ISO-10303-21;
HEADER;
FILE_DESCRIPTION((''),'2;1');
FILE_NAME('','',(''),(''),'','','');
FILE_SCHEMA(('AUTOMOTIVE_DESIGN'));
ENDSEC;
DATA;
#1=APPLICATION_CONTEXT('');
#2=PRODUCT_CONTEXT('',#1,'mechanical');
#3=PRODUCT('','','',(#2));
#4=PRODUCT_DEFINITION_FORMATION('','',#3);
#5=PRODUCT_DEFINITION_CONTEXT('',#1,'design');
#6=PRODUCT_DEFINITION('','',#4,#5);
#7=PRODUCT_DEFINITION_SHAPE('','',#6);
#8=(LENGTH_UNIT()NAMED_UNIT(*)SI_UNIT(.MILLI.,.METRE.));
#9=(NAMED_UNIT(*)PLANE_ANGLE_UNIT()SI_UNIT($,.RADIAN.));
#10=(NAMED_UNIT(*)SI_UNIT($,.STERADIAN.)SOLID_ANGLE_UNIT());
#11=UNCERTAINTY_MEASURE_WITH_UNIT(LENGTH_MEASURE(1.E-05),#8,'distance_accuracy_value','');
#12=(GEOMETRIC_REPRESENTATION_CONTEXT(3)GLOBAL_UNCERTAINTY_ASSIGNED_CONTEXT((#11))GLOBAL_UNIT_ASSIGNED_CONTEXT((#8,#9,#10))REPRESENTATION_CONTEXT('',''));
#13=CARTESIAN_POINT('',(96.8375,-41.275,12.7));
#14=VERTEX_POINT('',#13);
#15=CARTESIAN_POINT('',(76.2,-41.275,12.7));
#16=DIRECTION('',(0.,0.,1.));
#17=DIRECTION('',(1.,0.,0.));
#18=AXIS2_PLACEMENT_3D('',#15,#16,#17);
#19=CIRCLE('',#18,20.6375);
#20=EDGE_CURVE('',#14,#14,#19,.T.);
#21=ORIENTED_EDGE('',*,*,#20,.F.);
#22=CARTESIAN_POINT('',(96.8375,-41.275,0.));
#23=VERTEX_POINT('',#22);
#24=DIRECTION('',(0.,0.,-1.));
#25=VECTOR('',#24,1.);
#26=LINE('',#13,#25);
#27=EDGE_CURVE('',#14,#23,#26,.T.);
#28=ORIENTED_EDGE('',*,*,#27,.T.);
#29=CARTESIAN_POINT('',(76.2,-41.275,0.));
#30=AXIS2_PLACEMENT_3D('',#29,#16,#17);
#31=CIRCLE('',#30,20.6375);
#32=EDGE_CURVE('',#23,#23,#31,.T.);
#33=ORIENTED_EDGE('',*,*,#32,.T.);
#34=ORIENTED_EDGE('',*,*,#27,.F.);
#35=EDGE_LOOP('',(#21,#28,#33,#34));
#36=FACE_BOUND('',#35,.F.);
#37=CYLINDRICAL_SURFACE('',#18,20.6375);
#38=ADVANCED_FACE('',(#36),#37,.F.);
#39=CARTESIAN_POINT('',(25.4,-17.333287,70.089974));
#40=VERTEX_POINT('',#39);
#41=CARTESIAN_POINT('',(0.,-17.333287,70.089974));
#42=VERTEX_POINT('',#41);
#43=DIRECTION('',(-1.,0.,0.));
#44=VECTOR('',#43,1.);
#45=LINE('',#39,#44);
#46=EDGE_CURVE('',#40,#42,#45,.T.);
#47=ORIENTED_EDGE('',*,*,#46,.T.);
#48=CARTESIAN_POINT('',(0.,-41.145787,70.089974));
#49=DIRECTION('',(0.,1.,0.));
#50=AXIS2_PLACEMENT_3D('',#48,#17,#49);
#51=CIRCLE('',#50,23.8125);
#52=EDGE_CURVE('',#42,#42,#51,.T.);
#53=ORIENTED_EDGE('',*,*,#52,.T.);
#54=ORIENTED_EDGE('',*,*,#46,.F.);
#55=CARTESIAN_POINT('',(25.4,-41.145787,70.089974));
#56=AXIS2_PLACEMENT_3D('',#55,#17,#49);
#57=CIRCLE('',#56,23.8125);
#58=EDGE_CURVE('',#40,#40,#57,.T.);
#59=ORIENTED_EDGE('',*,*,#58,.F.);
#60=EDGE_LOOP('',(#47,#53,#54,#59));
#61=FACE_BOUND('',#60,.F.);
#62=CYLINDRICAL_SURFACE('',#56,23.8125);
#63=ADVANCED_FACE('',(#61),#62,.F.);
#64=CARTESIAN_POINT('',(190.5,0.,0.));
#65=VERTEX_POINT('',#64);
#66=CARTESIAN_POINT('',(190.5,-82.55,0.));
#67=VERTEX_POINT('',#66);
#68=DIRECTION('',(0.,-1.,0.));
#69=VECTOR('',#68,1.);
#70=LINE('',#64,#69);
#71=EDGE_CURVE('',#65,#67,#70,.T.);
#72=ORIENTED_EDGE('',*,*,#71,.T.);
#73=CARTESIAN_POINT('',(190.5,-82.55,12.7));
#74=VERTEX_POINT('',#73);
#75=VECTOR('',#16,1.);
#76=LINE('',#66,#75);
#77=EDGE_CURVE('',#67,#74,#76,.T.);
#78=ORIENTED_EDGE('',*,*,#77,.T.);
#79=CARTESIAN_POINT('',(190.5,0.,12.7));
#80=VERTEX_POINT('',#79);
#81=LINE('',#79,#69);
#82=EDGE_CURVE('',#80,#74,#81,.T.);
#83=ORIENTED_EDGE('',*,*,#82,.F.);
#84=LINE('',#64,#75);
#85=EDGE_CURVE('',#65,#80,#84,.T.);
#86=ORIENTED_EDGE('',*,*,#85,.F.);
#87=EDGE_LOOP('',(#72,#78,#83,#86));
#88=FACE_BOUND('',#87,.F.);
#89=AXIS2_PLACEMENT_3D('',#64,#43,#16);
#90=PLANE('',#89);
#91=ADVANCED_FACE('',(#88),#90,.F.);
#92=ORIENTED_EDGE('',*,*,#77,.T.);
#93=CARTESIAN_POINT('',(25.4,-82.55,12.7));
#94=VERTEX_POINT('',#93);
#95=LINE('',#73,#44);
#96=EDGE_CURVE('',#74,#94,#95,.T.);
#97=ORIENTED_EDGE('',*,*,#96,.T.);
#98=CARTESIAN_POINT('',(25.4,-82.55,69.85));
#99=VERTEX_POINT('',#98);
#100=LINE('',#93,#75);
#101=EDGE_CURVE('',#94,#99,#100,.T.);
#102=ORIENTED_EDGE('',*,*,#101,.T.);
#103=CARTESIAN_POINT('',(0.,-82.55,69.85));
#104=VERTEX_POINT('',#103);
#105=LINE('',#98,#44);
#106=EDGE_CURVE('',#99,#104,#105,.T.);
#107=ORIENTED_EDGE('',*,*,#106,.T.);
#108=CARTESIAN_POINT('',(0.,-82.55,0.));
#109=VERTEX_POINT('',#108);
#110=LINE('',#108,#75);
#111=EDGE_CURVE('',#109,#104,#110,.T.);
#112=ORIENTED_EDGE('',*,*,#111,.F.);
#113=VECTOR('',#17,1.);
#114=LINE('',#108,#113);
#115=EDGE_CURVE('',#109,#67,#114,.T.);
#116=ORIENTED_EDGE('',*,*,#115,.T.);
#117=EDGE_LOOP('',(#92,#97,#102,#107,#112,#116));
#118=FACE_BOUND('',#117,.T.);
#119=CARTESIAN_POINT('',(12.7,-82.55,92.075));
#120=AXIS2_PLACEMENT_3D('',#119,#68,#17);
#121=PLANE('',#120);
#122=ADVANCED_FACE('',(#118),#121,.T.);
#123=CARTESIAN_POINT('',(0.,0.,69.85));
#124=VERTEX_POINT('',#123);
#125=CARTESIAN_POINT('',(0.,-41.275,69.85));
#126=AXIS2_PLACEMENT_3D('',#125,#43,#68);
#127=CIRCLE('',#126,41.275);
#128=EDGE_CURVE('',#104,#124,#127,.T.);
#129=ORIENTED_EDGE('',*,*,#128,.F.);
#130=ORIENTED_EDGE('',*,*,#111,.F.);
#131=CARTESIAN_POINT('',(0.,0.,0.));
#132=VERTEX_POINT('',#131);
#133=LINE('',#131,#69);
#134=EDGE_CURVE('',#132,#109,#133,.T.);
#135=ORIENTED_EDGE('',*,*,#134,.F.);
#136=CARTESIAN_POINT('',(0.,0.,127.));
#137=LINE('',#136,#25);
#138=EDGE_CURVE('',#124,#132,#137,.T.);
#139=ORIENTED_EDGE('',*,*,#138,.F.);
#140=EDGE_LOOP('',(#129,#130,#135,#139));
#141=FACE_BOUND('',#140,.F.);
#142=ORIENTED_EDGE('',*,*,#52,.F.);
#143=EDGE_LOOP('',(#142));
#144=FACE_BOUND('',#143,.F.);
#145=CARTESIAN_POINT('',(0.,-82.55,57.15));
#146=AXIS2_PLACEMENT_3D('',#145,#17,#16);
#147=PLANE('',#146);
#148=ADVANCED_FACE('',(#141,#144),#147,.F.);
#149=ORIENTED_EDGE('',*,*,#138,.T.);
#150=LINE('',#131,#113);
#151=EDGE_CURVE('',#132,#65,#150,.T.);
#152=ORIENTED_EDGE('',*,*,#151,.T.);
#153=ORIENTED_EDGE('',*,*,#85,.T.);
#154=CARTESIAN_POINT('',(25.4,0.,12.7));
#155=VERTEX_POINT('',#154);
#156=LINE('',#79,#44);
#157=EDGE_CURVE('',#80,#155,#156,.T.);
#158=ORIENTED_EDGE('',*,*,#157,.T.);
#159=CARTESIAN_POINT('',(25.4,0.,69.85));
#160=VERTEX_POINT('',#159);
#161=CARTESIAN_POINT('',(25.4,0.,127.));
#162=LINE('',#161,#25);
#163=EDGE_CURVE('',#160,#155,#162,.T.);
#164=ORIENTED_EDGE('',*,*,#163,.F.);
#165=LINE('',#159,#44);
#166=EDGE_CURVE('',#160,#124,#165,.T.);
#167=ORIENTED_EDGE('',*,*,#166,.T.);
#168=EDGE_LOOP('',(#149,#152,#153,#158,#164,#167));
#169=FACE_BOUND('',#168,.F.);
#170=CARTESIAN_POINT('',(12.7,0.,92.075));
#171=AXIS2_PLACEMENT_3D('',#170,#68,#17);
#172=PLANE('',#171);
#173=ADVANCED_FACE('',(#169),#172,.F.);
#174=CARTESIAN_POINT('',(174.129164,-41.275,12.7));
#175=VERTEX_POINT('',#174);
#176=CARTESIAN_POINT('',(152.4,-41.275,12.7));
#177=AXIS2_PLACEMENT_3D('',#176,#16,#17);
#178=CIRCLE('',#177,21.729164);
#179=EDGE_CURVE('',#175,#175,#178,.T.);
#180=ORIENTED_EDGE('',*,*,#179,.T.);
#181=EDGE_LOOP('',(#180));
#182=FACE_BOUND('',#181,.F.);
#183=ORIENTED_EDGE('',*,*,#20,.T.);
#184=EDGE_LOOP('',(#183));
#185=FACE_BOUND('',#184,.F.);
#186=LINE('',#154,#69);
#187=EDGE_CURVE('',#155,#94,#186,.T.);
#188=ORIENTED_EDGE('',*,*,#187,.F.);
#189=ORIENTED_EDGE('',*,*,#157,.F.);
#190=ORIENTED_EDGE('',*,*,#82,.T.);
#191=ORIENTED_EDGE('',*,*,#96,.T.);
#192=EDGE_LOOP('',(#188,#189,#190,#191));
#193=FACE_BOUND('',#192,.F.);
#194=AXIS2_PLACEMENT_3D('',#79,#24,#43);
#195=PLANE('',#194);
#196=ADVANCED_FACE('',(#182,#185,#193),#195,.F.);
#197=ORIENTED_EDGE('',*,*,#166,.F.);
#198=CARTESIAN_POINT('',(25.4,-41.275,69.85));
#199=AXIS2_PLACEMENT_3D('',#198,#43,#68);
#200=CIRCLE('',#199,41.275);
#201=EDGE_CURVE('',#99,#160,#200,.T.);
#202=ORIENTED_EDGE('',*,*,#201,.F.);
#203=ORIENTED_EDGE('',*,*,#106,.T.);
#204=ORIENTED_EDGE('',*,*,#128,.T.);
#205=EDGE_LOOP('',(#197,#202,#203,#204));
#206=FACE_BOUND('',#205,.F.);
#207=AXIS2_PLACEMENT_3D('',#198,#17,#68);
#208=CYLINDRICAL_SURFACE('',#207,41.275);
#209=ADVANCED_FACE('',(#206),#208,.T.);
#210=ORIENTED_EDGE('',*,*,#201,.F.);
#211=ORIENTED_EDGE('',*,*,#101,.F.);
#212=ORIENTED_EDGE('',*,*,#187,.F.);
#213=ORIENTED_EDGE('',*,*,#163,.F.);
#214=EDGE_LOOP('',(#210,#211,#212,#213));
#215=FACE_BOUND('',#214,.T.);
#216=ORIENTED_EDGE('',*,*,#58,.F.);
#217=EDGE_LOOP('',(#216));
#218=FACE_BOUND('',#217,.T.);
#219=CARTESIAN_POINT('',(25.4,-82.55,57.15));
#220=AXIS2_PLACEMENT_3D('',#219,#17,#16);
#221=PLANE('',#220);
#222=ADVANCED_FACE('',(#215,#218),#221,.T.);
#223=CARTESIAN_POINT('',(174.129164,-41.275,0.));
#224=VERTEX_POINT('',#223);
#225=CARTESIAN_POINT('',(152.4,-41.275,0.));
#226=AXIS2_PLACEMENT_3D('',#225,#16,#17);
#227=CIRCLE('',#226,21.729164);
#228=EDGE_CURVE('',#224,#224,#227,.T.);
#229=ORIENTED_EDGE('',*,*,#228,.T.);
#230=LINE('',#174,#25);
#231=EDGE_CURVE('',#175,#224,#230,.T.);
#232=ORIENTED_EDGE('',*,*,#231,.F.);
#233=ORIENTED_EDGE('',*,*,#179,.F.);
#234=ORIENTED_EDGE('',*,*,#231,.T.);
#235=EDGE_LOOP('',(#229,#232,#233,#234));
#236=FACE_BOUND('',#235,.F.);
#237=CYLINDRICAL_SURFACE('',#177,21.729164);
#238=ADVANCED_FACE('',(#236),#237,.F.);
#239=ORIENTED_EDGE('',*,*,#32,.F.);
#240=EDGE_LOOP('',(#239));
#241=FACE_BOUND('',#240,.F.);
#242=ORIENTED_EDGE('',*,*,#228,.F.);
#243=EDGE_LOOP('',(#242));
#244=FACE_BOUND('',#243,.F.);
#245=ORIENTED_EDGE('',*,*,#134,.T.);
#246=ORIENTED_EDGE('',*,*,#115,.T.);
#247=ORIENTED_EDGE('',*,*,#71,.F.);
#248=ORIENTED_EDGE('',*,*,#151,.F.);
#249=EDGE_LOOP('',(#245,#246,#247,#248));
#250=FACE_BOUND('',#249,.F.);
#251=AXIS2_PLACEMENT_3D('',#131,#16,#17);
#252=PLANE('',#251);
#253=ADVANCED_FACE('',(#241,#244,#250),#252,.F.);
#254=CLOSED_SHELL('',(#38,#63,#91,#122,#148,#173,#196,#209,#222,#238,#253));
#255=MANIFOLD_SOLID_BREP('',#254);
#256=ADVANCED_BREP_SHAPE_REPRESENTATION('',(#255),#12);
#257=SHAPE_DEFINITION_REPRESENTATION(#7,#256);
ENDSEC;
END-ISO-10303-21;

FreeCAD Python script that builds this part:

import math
import FreeCAD as App
import Part
import Sketcher
Q = App.Units.Quantity

doc = App.newDocument("Part")
params = doc.addObject("Spreadsheet::Sheet", "Params")
for row, (alias, value) in enumerate([
    ("sketch1_width", "1 in"),
    ("sketch1_width2", "7.5 in"),
    ("sketch1_height", "0.5 in"),
    ("sketch1_height2", "2.25 in"),
    ("pad1_length", "3.25 in"),
    ("sketch2_width", "1 in"),
    ("sketch2_height", "2.75 in"),
    ("pad2_length", "3.25 in"),
    ("sketch3_diameter", "1.625 in"),
    ("pocket1_length", "1 in"),
    ("sketch4_radius", "1.625 in"),
    ("sketch4_height", "2.25 in"),
    ("pocket2_length", "1 in"),
    ("sketch5_diameter", "1.875 in"),
    ("pocket3_length", "1 in"),
], start=1):
    params.set(f"A{row}", alias)
    params.set(f"B{row}", "=" + value)
    params.setAlias(f"B{row}", alias)

body = doc.addObject("PartDesign::Body", "Body")

# Sketch on XZ plane
sketch1 = body.newObject("Sketcher::SketchObject", "Sketch")
sketch1.AttachmentSupport = (doc.getObject("XZ_Plane"), [""])
sketch1.MapMode = "FlatFace"
sketch1.addGeometry([
    Part.LineSegment(App.Vector(0, 57, 0), App.Vector(0, 0, 0)),  # 0
    Part.LineSegment(App.Vector(0, 0, 0), App.Vector(190, 0, 0)),  # 1
    Part.LineSegment(App.Vector(190, 0, 0), App.Vector(190, 13, 0)),  # 2
    Part.LineSegment(App.Vector(190, 13, 0), App.Vector(25, 13, 0)),  # 3
    Part.LineSegment(App.Vector(25, 13, 0), App.Vector(25, 57, 0)),  # 4
    Part.LineSegment(App.Vector(25, 57, 0), App.Vector(0, 57, 0)),  # 5
], False)
sketch1.addConstraint([
    Sketcher.Constraint("Coincident", 0, 2, 1, 1),
    Sketcher.Constraint("Coincident", 1, 2, 2, 1),
    Sketcher.Constraint("Coincident", 2, 2, 3, 1),
    Sketcher.Constraint("Coincident", 3, 2, 4, 1),
    Sketcher.Constraint("Coincident", 4, 2, 5, 1),
    Sketcher.Constraint("Coincident", 5, 2, 0, 1),
    Sketcher.Constraint("Vertical", 0),
    Sketcher.Constraint("Horizontal", 1),
    Sketcher.Constraint("Vertical", 2),
    Sketcher.Constraint("Horizontal", 3),
    Sketcher.Constraint("Vertical", 4),
    Sketcher.Constraint("Horizontal", 5),
    Sketcher.Constraint("Coincident", 0, 2, -1, 1),
    Sketcher.Constraint("DistanceX", 5, 2, 5, 1, Q("1 in")),
    Sketcher.Constraint("DistanceX", 1, 1, 1, 2, Q("7.5 in")),
    Sketcher.Constraint("DistanceY", 2, 1, 2, 2, Q("0.5 in")),
    Sketcher.Constraint("DistanceY", 0, 2, 0, 1, Q("2.25 in")),
])
sketch1.setExpression("Constraints[13]", "Params.sketch1_width")
sketch1.setExpression("Constraints[14]", "Params.sketch1_width2")
sketch1.setExpression("Constraints[15]", "Params.sketch1_height")
sketch1.setExpression("Constraints[16]", "Params.sketch1_height2")
pad1 = body.newObject("PartDesign::Pad", "Pad")
pad1.Profile = sketch1
pad1.setExpression("Length", "Params.pad1_length")

# Sketch on XZ plane
sketch2 = body.newObject("Sketcher::SketchObject", "Sketch001")
sketch2.AttachmentSupport = (doc.getObject("XZ_Plane"), [""])
sketch2.MapMode = "FlatFace"
sketch2.AttachmentOffset = App.Placement(App.Vector(0, 0, 3.25 * 25.4), App.Rotation())
sketch2.addGeometry([
    Part.LineSegment(App.Vector(0, 127, 0), App.Vector(0, 57, 0)),
    Part.LineSegment(App.Vector(0, 57, 0), App.Vector(25, 57, 0)),
    Part.LineSegment(App.Vector(25, 57, 0), App.Vector(25, 127, 0)),
    Part.LineSegment(App.Vector(25, 127, 0), App.Vector(0, 127, 0)),
], False)
sketch2.addConstraint([
    Sketcher.Constraint("Coincident", 0, 2, 1, 1),
    Sketcher.Constraint("Coincident", 1, 2, 2, 1),
    Sketcher.Constraint("Coincident", 2, 2, 3, 1),
    Sketcher.Constraint("Coincident", 3, 2, 0, 1),
    Sketcher.Constraint("Vertical", 0),
    Sketcher.Constraint("Horizontal", 1),
    Sketcher.Constraint("Vertical", 2),
    Sketcher.Constraint("Horizontal", 3),
    Sketcher.Constraint("PointOnObject", 0, 2, -2),
    Sketcher.Constraint("DistanceX", 1, 1, 1, 2, Q("1 in")),
    Sketcher.Constraint("DistanceY", -1, 1, 2, 2, Q("5 in")),
    Sketcher.Constraint("DistanceY", 0, 2, 0, 1, Q("2.75 in")),
])
sketch2.setExpression("Constraints[9]", "Params.sketch2_width")
sketch2.setExpression("Constraints[11]", "Params.sketch2_height")
pad2 = body.newObject("PartDesign::Pad", "Pad001")
pad2.Profile = sketch2
pad2.setExpression("Length", "Params.pad2_length")
pad2.Reversed = True

# Sketch on XY plane
sketch3 = body.newObject("Sketcher::SketchObject", "Sketch002")
sketch3.AttachmentSupport = (doc.getObject("XY_Plane"), [""])
sketch3.MapMode = "FlatFace"
sketch3.AttachmentOffset = App.Placement(App.Vector(0, 0, 0.5 * 25.4), App.Rotation())
sketch3.addGeometry([
    Part.Circle(App.Vector(76, -41, 0), App.Vector(0, 0, 1), 21),
    Part.Circle(App.Vector(152, -41, 0), App.Vector(0, 0, 1), 22),
], False)
sketch3.addConstraint([
    Sketcher.Constraint("Horizontal", 0, 3, 1, 3),
    Sketcher.Constraint("Diameter", 0, Q("1.625 in")),
    Sketcher.Constraint("DistanceX", -1, 1, 0, 3, Q("3 in")),
    Sketcher.Constraint("DistanceX", -1, 1, 1, 3, Q("6 in")),
    Sketcher.Constraint("Diameter", 1, Q("43.458328 mm")),
    Sketcher.Constraint("DistanceY", 0, 3, -1, 1, Q("1.625 in")),
])
sketch3.setExpression("Constraints[1]", "Params.sketch3_diameter")
pocket1 = body.newObject("PartDesign::Pocket", "Pocket")
pocket1.Profile = sketch3
pocket1.setExpression("Length", "Params.pocket1_length")

# Sketch on YZ plane
sketch4 = body.newObject("Sketcher::SketchObject", "Sketch003")
sketch4.AttachmentSupport = (doc.getObject("YZ_Plane"), [""])
sketch4.MapMode = "FlatFace"
sketch4.AttachmentOffset = App.Placement(App.Vector(0, 0, 1 * 25.4), App.Rotation())
sketch4.addGeometry([
    Part.ArcOfCircle(Part.Circle(App.Vector(-41, 70, 0), App.Vector(0, 0, 1), 41), math.radians(0), math.radians(180)),
    Part.LineSegment(App.Vector(0, 70, 0), App.Vector(0, 127, 0)),
    Part.LineSegment(App.Vector(0, 127, 0), App.Vector(-83, 127, 0)),
    Part.LineSegment(App.Vector(-83, 127, 0), App.Vector(-83, 70, 0)),
], False)
sketch4.addConstraint([
    Sketcher.Constraint("Tangent", 0, 1, 1, 1),
    Sketcher.Constraint("Coincident", 1, 2, 2, 1),
    Sketcher.Constraint("Coincident", 2, 2, 3, 1),
    Sketcher.Constraint("Tangent", 3, 2, 0, 2),
    Sketcher.Constraint("Vertical", 1),
    Sketcher.Constraint("Horizontal", 2),
    Sketcher.Constraint("Vertical", 3),
    Sketcher.Constraint("PointOnObject", 0, 1, -2),
    Sketcher.Constraint("DistanceY", -1, 1, 1, 2, Q("5 in")),
    Sketcher.Constraint("Radius", 0, Q("1.625 in")),
    Sketcher.Constraint("DistanceY", 1, 1, 1, 2, Q("2.25 in")),
])
sketch4.setExpression("Constraints[9]", "Params.sketch4_radius")
sketch4.setExpression("Constraints[10]", "Params.sketch4_height")
pocket2 = body.newObject("PartDesign::Pocket", "Pocket001")
pocket2.Profile = sketch4
pocket2.setExpression("Length", "Params.pocket2_length")

# Sketch on YZ plane
sketch5 = body.newObject("Sketcher::SketchObject", "Sketch004")
sketch5.AttachmentSupport = (doc.getObject("YZ_Plane"), [""])
sketch5.MapMode = "FlatFace"
sketch5.AttachmentOffset = App.Placement(App.Vector(0, 0, 1 * 25.4), App.Rotation())
sketch5.addGeometry(Part.Circle(App.Vector(-41, 70, 0), App.Vector(0, 0, 1), 24), False)
sketch5.addConstraint([
    Sketcher.Constraint("Diameter", 0, Q("1.875 in")),
    Sketcher.Constraint("DistanceX", 0, 3, -1, 1, Q("41.145787 mm")),
    Sketcher.Constraint("DistanceY", -1, 1, 0, 3, Q("70.089974 mm")),
])
sketch5.setExpression("Constraints[0]", "Params.sketch5_diameter")
pocket3 = body.newObject("PartDesign::Pocket", "Pocket002")
pocket3.Profile = sketch5
pocket3.setExpression("Length", "Params.pocket3_length")

doc.recompute()
